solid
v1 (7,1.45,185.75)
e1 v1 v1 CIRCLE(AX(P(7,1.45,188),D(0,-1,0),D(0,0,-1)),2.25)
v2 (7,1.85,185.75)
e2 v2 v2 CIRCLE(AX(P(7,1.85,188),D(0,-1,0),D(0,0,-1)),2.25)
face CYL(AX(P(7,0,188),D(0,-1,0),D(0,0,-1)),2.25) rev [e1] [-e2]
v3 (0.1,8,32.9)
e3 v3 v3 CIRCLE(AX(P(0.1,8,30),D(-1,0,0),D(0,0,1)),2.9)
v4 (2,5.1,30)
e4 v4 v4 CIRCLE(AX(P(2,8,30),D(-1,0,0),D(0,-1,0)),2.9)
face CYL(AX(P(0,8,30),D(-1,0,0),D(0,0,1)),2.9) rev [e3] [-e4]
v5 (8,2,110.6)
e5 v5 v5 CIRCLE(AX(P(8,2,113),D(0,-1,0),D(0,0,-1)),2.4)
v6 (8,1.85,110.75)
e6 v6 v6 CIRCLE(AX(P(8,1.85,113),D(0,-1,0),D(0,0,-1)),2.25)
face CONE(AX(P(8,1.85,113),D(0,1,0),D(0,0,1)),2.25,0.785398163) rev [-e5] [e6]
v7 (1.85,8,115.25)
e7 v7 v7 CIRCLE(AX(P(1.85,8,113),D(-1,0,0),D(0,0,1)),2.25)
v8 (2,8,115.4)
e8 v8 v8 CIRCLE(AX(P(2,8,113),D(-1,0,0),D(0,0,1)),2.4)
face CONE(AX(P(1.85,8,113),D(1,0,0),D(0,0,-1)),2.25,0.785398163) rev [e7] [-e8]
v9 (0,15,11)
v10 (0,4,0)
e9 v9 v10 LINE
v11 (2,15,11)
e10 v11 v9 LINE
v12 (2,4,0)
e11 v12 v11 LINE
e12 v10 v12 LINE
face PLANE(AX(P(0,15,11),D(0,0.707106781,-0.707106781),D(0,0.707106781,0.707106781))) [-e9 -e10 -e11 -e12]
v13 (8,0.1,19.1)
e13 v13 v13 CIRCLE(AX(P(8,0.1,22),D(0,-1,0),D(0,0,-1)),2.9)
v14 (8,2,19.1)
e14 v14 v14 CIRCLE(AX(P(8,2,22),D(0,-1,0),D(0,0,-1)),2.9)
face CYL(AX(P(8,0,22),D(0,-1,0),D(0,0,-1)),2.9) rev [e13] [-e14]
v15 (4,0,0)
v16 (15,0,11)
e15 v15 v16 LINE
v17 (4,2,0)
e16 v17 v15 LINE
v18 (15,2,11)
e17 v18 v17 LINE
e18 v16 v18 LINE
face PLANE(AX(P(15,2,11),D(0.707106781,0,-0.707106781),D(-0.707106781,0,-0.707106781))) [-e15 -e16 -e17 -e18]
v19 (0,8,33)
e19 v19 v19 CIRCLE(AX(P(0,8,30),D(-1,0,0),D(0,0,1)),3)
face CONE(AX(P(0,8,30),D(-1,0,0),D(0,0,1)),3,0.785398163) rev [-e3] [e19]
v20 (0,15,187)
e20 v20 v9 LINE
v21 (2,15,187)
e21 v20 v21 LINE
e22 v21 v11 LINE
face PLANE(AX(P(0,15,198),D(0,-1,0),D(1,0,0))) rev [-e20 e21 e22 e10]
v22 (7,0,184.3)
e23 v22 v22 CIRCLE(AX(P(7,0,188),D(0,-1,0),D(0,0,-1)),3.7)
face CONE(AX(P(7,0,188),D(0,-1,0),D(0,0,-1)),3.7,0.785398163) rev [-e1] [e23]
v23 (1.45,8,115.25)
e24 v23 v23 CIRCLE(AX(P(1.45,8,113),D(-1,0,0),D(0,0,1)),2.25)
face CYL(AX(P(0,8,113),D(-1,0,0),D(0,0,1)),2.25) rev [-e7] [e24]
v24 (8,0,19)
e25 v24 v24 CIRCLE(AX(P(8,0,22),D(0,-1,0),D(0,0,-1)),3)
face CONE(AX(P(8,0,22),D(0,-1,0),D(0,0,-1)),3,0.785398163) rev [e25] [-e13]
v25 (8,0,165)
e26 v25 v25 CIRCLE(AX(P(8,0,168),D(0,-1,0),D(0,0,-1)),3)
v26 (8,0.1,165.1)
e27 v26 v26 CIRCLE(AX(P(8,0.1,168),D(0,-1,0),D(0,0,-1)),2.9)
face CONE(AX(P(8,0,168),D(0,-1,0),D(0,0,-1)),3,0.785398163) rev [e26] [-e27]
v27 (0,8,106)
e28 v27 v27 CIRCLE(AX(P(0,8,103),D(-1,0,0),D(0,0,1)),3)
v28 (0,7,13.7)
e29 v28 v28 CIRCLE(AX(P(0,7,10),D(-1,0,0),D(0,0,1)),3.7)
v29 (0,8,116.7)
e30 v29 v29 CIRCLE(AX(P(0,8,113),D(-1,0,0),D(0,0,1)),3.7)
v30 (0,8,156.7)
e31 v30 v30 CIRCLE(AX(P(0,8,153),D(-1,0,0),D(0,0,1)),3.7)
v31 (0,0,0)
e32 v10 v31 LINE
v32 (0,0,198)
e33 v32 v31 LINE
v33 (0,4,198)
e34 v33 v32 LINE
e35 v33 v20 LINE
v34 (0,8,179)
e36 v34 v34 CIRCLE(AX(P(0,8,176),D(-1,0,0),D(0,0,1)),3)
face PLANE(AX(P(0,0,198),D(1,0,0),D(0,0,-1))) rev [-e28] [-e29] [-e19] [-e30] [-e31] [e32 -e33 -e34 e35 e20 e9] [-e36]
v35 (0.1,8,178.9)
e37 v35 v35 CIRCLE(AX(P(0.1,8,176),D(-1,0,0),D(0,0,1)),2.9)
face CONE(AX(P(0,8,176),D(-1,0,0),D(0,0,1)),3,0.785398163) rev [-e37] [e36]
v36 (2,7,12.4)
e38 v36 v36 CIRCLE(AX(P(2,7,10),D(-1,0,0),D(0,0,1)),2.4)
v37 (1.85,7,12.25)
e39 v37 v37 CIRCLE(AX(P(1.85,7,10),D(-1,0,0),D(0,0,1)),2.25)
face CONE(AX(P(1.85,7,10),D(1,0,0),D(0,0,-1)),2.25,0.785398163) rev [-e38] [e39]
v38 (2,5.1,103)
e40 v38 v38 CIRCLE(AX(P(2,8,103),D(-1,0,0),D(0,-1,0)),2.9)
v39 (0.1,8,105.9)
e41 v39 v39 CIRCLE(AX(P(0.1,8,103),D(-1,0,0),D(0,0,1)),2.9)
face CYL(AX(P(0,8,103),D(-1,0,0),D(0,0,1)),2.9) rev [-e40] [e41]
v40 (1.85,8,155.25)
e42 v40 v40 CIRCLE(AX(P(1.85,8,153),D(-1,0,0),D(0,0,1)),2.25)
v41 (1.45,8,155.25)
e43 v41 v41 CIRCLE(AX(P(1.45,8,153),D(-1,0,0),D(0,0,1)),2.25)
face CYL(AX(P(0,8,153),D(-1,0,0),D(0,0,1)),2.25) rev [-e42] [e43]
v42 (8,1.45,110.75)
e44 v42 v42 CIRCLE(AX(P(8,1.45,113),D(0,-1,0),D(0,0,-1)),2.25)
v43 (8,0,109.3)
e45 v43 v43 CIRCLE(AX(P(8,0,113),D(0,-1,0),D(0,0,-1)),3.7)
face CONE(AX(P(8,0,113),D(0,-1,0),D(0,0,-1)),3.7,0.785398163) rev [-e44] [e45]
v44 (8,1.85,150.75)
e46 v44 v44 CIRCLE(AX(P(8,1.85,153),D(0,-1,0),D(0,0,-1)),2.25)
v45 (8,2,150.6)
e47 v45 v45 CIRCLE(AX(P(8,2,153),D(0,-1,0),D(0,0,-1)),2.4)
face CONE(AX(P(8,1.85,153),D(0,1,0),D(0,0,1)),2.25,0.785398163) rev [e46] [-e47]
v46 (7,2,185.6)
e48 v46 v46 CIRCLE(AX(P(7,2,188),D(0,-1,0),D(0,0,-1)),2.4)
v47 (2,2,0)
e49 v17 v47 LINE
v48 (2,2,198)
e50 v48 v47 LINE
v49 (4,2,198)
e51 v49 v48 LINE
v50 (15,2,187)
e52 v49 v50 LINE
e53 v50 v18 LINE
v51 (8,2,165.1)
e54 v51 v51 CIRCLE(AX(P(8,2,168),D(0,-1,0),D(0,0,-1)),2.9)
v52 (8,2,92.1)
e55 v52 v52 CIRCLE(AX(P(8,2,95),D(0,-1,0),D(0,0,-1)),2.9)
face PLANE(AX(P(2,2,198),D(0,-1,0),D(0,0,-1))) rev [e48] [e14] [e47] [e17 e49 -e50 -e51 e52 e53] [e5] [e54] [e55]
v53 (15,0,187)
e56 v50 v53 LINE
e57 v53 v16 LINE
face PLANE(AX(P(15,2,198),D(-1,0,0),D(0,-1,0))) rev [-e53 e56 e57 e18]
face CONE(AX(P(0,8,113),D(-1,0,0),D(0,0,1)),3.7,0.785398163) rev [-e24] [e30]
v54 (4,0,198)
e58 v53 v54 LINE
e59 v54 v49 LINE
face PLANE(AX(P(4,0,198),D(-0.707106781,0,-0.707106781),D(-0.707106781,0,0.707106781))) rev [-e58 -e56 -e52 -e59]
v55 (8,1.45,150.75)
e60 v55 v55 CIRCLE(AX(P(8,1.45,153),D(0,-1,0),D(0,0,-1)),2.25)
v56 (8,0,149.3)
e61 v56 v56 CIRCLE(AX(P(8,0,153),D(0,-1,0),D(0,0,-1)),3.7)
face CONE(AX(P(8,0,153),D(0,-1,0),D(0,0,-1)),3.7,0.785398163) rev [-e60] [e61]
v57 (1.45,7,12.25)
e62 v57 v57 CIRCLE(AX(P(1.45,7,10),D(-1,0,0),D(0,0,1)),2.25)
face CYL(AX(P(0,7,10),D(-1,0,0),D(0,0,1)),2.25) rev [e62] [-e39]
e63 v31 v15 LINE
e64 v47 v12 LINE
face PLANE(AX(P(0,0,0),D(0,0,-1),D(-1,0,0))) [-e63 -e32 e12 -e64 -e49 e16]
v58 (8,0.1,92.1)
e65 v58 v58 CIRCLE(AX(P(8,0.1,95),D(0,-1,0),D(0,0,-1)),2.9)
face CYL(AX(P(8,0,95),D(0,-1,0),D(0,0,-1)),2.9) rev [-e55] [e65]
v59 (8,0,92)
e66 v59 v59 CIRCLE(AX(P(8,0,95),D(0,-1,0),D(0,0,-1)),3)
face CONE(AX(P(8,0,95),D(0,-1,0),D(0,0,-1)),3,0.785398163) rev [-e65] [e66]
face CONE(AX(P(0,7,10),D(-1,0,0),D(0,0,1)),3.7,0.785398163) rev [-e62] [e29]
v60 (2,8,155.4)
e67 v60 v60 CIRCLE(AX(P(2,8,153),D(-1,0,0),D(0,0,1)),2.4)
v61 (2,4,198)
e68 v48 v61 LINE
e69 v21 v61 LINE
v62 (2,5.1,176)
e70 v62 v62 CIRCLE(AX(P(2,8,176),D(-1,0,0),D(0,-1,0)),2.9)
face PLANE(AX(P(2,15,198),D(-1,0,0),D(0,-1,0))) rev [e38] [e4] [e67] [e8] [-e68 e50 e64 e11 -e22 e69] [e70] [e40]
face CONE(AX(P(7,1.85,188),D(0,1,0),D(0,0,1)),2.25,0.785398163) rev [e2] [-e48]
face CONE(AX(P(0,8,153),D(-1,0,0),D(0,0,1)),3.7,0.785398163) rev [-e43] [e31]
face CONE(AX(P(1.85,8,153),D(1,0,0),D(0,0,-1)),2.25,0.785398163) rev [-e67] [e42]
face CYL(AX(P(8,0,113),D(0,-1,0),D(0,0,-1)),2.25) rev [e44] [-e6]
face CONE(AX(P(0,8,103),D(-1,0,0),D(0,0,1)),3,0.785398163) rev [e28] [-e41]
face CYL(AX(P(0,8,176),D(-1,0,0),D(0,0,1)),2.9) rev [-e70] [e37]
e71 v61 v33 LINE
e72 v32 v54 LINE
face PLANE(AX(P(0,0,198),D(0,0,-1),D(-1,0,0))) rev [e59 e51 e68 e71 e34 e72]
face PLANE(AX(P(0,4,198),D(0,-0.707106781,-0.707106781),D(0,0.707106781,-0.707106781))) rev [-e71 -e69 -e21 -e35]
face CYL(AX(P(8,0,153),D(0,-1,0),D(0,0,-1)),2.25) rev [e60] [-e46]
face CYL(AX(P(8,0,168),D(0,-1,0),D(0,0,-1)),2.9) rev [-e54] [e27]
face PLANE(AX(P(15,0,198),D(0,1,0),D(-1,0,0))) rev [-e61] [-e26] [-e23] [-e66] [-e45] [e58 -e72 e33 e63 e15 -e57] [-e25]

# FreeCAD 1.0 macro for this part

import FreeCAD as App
import Part
import Sketcher
from FreeCAD import Vector
Q = App.Units.Quantity


def edges_at(feature, points):
    """Names of the edges that pass closest to the given points."""
    edges = feature.Shape.Edges
    near = lambda p: min(range(len(edges)), key=lambda i: edges[i].distToShape(Part.Vertex(*p))[0])
    return sorted({f"Edge{near(p) + 1}" for p in points})


def add_polygon(sketch, points):
    """Adds a closed chain of lines whose ends are joined by coincident constraints."""
    first, n = sketch.GeometryCount, len(points)
    for a, b in zip(points, points[1:] + points[:1]):
        sketch.addGeometry(Part.LineSegment(App.Vector(*a, 0), App.Vector(*b, 0)), False)
    for i in range(n):
        sketch.addConstraint(Sketcher.Constraint("Coincident", first + i, 2, first + (i + 1) % n, 1))

doc = App.newDocument("Part")
body = doc.addObject("PartDesign::Body", "Body")

# Sketch on XY plane
sketch1 = body.newObject("Sketcher::SketchObject", "Sketch")
sketch1.AttachmentSupport = (doc.getObject("XY_Plane"), [""])
sketch1.MapMode = "FlatFace"
add_polygon(sketch1, [(0, 15), (0, 0), (15, 0), (15, 2), (2, 2), (2, 15)])  # lines 0-5
sketch1.addConstraint([
    Sketcher.Constraint("Vertical", 0),
    Sketcher.Constraint("Horizontal", 1),
    Sketcher.Constraint("Vertical", 2),
    Sketcher.Constraint("Horizontal", 3),
    Sketcher.Constraint("Vertical", 4),
    Sketcher.Constraint("Horizontal", 5),
    Sketcher.Constraint("Coincident", 0, 2, -1, 1),
    Sketcher.Constraint("Equal", 1, 0),
    Sketcher.Constraint("Equal", 5, 2),
    Sketcher.Constraint("DistanceX", 1, 1, 1, 2, 15.0),
    Sketcher.Constraint("DistanceX", 3, 2, 3, 1, 13.0),
])
pad1 = body.newObject("PartDesign::Pad", "Pad")
pad1.Profile = sketch1
pad1.Length = 198
doc.recompute()

chamfer = body.newObject("PartDesign::Chamfer", "Chamfer")
chamfer.Base = (pad1, edges_at(pad1, [
    (1, 15, 198),
    (1, 15, 0),
    (15, 1, 198),
    (15, 1, 0),
]))
chamfer.Size = 11

# Sketch on YZ plane
sketch2 = body.newObject("Sketcher::SketchObject", "Sketch001")
sketch2.AttachmentSupport = (doc.getObject("YZ_Plane"), [""])
sketch2.MapMode = "FlatFace"
sketch2.AttachmentOffset = App.Placement(Vector(0, 0, 7), App.Rotation())
add_polygon(sketch2, [(2, 188), (0, 188), (0, 184.3), (1.45, 185.75), (1.85, 185.75), (2, 185.6)])  # lines 0-5
sketch2.addGeometry(Part.LineSegment(Vector(0, 188, 0), Vector(2, 188, 0)), True)  # axis
sketch2.addConstraint([
    Sketcher.Constraint("Horizontal", 0),
    Sketcher.Constraint("Vertical", 1),
    Sketcher.Constraint("Horizontal", 3),
    Sketcher.Constraint("Vertical", 5),
    Sketcher.Constraint("Horizontal", 6),
    Sketcher.Constraint("Coincident", 6, 1, 0, 2),
    Sketcher.Constraint("PointOnObject", 0, 2, -2),
    Sketcher.Constraint("Perpendicular", 2, 4),
    Sketcher.Constraint("Vertical", 4, 2, 6, 2),
    Sketcher.Constraint("DistanceX", 0, 2, 0, 1, 2.0),
    Sketcher.Constraint("Angle", 2, Q("45 deg")),
    Sketcher.Constraint("DistanceX", 3, 1, 3, 2, 0.4),
    Sketcher.Constraint("DistanceY", 1, 2, 1, 1, 3.7),
    Sketcher.Constraint("DistanceY", 5, 1, 5, 2, 2.4),
    Sketcher.Constraint("DistanceY", -1, 1, 0, 2, 188.0),
])
groove = body.newObject("PartDesign::Groove", "Groove")
groove.Profile = sketch2
groove.ReferenceAxis = (sketch2, ["Axis0"])
groove.Angle = 360
doc.recompute()

datumline = body.newObject("PartDesign::Line", "DatumLine")
datumline.Placement = App.Placement(Vector(0, 0, 0), App.Rotation(Vector(0, 0, 1), Vector(0.028559774, 0, -0.999592086)))
linearpattern = body.newObject("PartDesign::LinearPattern", "LinearPattern")
linearpattern.Originals = [groove]
linearpattern.Direction = (datumline, [""])
linearpattern.Mode = "offset"
linearpattern.Offset = 35.014283
linearpattern.Occurrences = 2
body.Tip = linearpattern
doc.recompute()

datumline2 = body.newObject("PartDesign::Line", "DatumLine001")
datumline2.Placement = App.Placement(Vector(0, 0, 0), App.Rotation(Vector(0, 0, 1), Vector(0.013332148, 0, -0.999911123)))
linearpattern2 = body.newObject("PartDesign::LinearPattern", "LinearPattern001")
linearpattern2.Originals = [groove]
linearpattern2.Direction = (datumline2, [""])
linearpattern2.Mode = "offset"
linearpattern2.Offset = 75.006666
linearpattern2.Occurrences = 2
body.Tip = linearpattern2

# Sketch on XZ plane
sketch3 = body.newObject("Sketcher::SketchObject", "Sketch002")
sketch3.AttachmentSupport = (doc.getObject("XZ_Plane"), [""])
sketch3.MapMode = "FlatFace"
sketch3.AttachmentOffset = App.Placement(Vector(0, 0, -7), App.Rotation())
add_polygon(sketch3, [(2, 10), (0, 10), (0, 13.7), (1.45, 12.25), (1.85, 12.25), (2, 12.4)])  # lines 0-5
sketch3.addGeometry(Part.LineSegment(Vector(0, 10, 0), Vector(2, 10, 0)), True)  # axis
sketch3.addConstraint([
    Sketcher.Constraint("Horizontal", 0),
    Sketcher.Constraint("Vertical", 1),
    Sketcher.Constraint("Horizontal", 3),
    Sketcher.Constraint("Vertical", 5),
    Sketcher.Constraint("Horizontal", 6),
    Sketcher.Constraint("Coincident", 6, 1, 0, 2),
    Sketcher.Constraint("PointOnObject", 0, 2, -2),
    Sketcher.Constraint("Perpendicular", 2, 4),
    Sketcher.Constraint("Vertical", 4, 2, 6, 2),
    Sketcher.Constraint("DistanceX", 0, 2, 0, 1, 2.0),
    Sketcher.Constraint("Angle", 2, Q("-45 deg")),
    Sketcher.Constraint("DistanceX", 3, 1, 3, 2, 0.4),
    Sketcher.Constraint("DistanceY", 1, 1, 1, 2, 3.7),
    Sketcher.Constraint("DistanceY", 5, 2, 5, 1, 2.4),
    Sketcher.Constraint("DistanceY", -1, 1, 0, 2, 10.0),
])
groove2 = body.newObject("PartDesign::Groove", "Groove001")
groove2.Profile = sketch3
groove2.ReferenceAxis = (sketch3, ["Axis0"])
groove2.Angle = 360
doc.recompute()

datumline3 = body.newObject("PartDesign::Line", "DatumLine002")
datumline3.Placement = App.Placement(Vector(0, 0, 0), App.Rotation(Vector(0, 0, 1), Vector(0, 0.00970828, 0.999952874)))
linearpattern3 = body.newObject("PartDesign::LinearPattern", "LinearPattern002")
linearpattern3.Originals = [groove2]
linearpattern3.Direction = (datumline3, [""])
linearpattern3.Mode = "offset"
linearpattern3.Offset = 103.004854
linearpattern3.Occurrences = 2
body.Tip = linearpattern3
doc.recompute()

datumline4 = body.newObject("PartDesign::Line", "DatumLine003")
datumline4.Placement = App.Placement(Vector(0, 0, 0), App.Rotation(Vector(0, 0, 1), Vector(0, 0.006992836, 0.99997555)))
linearpattern4 = body.newObject("PartDesign::LinearPattern", "LinearPattern003")
linearpattern4.Originals = [groove2]
linearpattern4.Direction = (datumline4, [""])
linearpattern4.Mode = "offset"
linearpattern4.Offset = 143.003496
linearpattern4.Occurrences = 2
body.Tip = linearpattern4

# Sketch on YZ plane
sketch4 = body.newObject("Sketcher::SketchObject", "Sketch003")
sketch4.AttachmentSupport = (doc.getObject("YZ_Plane"), [""])
sketch4.MapMode = "FlatFace"
sketch4.addGeometry([
    Part.Circle(Vector(8, 103, 0), Vector(0, 0, 1), 2.9),
    Part.Circle(Vector(8, 30, 0), Vector(0, 0, 1), 2.9),
    Part.Circle(Vector(8, 176, 0), Vector(0, 0, 1), 2.9),
], False)
sketch4.addConstraint([
    Sketcher.Constraint("Equal", 0, 1),
    Sketcher.Constraint("Equal", 1, 2),
    Sketcher.Constraint("Vertical", 0, 3, 1, 3),
    Sketcher.Constraint("Vertical", 1, 3, 2, 3),
    Sketcher.Constraint("Diameter", 0, 5.8),
    Sketcher.Constraint("DistanceX", -1, 1, 0, 3, 8.0),
    Sketcher.Constraint("DistanceY", -1, 1, 0, 3, 103.0),
    Sketcher.Constraint("DistanceY", -1, 1, 1, 3, 30.0),
    Sketcher.Constraint("DistanceY", -1, 1, 2, 3, 176.0),
])
doc.recompute()
hole = body.newObject("PartDesign::Hole", "Hole")
hole.Profile = sketch4
hole.ThreadType = "None"
hole.Diameter = 5.8
hole.DepthType = "Dimension"
hole.Depth = 3
hole.DrillPoint = "Angled"
hole.DrillPointAngle = 118
hole.HoleCutType = "Countersink"
hole.HoleCutDiameter = 6
hole.HoleCutCountersinkAngle = 90
hole.Reversed = True

# Sketch on XZ plane
sketch5 = body.newObject("Sketcher::SketchObject", "Sketch004")
sketch5.AttachmentSupport = (doc.getObject("XZ_Plane"), [""])
sketch5.MapMode = "FlatFace"
sketch5.addGeometry([
    Part.Circle(Vector(8, 95, 0), Vector(0, 0, 1), 2.9),
    Part.Circle(Vector(8, 22, 0), Vector(0, 0, 1), 2.9),
    Part.Circle(Vector(8, 168, 0), Vector(0, 0, 1), 2.9),
], False)
sketch5.addConstraint([
    Sketcher.Constraint("Equal", 0, 1),
    Sketcher.Constraint("Equal", 1, 2),
    Sketcher.Constraint("Vertical", 0, 3, 1, 3),
    Sketcher.Constraint("Vertical", 1, 3, 2, 3),
    Sketcher.Constraint("Diameter", 0, 5.8),
    Sketcher.Constraint("DistanceX", -1, 1, 0, 3, 8.0),
    Sketcher.Constraint("DistanceY", -1, 1, 0, 3, 95.0),
    Sketcher.Constraint("DistanceY", -1, 1, 1, 3, 22.0),
    Sketcher.Constraint("DistanceY", -1, 1, 2, 3, 168.0),
])
doc.recompute()
hole2 = body.newObject("PartDesign::Hole", "Hole001")
hole2.Profile = sketch5
hole2.ThreadType = "None"
hole2.Diameter = 5.8
hole2.DepthType = "Dimension"
hole2.Depth = 3
hole2.DrillPoint = "Angled"
hole2.DrillPointAngle = 118
hole2.HoleCutType = "Countersink"
hole2.HoleCutDiameter = 6
hole2.HoleCutCountersinkAngle = 90

doc.recompute()
